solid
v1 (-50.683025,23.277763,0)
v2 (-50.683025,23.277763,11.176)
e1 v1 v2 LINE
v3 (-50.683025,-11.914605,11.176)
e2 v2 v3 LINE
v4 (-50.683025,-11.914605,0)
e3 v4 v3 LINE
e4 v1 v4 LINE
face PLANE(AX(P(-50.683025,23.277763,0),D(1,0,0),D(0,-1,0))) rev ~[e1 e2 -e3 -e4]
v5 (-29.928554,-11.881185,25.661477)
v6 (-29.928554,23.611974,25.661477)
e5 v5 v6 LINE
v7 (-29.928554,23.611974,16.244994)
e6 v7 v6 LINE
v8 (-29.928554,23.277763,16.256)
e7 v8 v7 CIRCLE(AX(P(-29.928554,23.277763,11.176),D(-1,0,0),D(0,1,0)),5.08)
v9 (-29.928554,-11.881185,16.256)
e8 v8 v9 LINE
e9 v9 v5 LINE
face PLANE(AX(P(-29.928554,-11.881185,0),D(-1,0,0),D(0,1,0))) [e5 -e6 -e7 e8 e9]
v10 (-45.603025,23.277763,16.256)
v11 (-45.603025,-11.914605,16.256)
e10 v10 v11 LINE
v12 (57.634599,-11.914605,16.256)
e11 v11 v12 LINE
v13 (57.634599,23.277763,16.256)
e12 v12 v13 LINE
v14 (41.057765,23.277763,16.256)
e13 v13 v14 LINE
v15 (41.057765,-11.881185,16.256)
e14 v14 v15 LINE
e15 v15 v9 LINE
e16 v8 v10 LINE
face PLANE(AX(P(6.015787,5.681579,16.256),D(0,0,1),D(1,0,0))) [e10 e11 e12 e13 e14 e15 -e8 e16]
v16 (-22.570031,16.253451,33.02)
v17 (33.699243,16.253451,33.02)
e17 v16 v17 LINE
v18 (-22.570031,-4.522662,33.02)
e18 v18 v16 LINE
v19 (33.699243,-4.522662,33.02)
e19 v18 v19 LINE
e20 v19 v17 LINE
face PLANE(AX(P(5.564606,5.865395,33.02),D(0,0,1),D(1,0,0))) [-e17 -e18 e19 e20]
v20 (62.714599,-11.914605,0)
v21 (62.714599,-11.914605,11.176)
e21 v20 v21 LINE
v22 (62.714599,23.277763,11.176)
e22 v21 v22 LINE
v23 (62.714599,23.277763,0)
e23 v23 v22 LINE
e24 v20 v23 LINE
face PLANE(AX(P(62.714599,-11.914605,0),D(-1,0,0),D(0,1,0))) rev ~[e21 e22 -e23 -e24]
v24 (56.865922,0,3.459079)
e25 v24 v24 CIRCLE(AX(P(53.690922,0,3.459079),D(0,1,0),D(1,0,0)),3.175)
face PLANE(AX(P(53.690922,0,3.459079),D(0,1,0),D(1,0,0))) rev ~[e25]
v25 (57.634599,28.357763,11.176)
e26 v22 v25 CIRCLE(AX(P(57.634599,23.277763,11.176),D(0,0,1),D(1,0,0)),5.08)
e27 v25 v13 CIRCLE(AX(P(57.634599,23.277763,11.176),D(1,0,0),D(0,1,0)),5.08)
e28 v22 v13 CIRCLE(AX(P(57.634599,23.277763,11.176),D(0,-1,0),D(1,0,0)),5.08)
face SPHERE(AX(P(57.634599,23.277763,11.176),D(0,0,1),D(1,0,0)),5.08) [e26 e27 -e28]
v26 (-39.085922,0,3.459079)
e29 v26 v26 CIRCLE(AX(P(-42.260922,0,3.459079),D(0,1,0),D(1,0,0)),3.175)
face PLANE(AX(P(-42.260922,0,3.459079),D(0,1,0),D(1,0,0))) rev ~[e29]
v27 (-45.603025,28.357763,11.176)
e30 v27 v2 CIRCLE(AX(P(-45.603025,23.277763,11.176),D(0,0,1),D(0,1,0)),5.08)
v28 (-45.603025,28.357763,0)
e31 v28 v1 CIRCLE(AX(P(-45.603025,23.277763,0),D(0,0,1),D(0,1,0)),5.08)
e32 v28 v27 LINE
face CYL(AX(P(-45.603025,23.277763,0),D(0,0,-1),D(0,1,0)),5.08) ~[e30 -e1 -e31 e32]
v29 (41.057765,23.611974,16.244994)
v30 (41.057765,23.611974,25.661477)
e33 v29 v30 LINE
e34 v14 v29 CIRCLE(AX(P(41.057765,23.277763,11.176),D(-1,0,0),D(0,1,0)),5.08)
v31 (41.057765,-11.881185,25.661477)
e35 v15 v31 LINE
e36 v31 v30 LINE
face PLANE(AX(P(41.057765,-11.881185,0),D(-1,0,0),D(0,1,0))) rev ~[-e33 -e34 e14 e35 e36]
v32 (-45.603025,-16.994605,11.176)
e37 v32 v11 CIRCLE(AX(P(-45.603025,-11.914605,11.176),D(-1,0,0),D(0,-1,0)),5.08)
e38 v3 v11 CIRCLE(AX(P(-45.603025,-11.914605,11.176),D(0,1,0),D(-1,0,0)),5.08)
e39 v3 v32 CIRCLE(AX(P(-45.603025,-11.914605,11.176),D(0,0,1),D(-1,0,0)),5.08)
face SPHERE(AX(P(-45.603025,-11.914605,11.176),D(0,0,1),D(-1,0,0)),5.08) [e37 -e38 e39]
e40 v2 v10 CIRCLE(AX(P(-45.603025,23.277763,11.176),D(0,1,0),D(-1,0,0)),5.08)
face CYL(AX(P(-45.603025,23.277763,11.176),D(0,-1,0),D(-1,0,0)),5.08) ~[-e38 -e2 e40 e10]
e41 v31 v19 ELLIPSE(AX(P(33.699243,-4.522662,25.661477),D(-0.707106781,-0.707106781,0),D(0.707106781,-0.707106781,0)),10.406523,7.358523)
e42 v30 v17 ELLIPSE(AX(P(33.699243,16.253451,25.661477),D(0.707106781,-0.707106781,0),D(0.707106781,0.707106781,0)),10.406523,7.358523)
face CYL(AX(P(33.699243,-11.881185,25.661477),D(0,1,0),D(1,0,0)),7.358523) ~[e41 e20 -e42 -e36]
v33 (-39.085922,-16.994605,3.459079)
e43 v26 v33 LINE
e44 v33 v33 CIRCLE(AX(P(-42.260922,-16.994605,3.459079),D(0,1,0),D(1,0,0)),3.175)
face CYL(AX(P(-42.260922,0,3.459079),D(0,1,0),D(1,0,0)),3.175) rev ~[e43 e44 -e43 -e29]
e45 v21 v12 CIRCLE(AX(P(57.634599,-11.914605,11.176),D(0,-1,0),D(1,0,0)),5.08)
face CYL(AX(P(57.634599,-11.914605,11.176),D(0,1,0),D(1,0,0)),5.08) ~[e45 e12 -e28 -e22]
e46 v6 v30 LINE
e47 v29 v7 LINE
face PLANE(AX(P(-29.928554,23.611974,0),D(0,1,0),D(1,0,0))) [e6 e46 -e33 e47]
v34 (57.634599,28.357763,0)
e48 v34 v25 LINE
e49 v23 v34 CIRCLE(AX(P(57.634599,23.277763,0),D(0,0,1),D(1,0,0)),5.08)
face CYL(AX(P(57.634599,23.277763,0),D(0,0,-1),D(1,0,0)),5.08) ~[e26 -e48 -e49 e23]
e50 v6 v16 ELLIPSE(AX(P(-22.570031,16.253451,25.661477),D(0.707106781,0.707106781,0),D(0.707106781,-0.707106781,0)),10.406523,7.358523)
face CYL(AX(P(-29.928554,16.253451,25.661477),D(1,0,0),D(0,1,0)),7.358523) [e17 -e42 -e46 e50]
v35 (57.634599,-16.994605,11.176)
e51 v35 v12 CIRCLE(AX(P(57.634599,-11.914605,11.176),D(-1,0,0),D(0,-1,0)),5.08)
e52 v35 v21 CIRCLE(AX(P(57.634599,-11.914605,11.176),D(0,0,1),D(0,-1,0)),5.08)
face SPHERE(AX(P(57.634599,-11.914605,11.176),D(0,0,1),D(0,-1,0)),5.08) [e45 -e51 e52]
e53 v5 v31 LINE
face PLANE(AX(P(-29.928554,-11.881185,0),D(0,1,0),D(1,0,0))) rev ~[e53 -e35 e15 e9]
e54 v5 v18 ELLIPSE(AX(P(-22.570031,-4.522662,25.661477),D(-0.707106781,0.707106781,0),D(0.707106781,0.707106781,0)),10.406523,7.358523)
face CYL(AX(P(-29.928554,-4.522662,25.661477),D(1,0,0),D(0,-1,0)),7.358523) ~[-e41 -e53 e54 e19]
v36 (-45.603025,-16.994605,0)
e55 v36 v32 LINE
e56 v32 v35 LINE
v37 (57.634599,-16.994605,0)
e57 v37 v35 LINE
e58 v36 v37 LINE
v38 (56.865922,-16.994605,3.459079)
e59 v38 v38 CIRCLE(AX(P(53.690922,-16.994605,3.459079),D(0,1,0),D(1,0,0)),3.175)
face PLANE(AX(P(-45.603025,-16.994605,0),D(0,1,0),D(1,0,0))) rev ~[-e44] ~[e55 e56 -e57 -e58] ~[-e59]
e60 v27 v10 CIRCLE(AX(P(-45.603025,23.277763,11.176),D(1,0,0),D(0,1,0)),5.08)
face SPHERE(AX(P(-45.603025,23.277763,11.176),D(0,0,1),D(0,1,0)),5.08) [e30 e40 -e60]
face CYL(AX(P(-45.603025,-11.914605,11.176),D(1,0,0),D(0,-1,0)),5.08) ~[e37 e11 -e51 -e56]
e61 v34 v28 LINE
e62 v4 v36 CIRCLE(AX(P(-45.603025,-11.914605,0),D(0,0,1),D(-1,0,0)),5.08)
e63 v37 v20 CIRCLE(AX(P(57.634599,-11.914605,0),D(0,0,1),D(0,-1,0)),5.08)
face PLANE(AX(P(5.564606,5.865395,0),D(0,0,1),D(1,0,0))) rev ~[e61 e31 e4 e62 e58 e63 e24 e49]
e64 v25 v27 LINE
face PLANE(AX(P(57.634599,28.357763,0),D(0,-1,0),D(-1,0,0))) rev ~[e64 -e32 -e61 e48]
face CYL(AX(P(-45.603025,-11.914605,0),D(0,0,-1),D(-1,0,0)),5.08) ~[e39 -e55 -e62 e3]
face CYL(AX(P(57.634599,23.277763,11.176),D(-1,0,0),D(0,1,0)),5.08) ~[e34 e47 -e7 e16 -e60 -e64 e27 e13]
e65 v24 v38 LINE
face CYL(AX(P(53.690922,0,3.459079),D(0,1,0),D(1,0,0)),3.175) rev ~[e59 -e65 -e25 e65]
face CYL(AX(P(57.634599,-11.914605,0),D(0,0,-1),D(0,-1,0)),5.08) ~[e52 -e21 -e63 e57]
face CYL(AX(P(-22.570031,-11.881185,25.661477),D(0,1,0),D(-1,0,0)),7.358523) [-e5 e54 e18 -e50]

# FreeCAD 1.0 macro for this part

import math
import FreeCAD as App
import Part
import Sketcher

V = App.Vector
Q = App.Units.Quantity


def edges_at(feature, points):
    """Names of the edges that pass closest to the given points."""
    edges = feature.Shape.Edges
    near = lambda p: min(range(len(edges)), key=lambda i: edges[i].distToShape(Part.Vertex(*p))[0])
    return sorted({f"Edge{near(p) + 1}" for p in points})

doc = App.newDocument("Part")
params = doc.addObject("Spreadsheet::Sheet", "Params")
for row, (alias, value) in enumerate([
    ("sketch1_radius", "0.2 in"),
    ("pad1_length", "0.64 in"),
    ("fillet_radius", "0.2 in"),
    ("pad2_length", "1.3 in"),
    ("fillet2_radius", "7.358523 mm"),
    ("sketch3_diameter", "0.25 in"),
], start=1):
    params.set(f"A{row}", alias)
    params.set(f"B{row}", "=" + value)
    params.setAlias(f"B{row}", alias)

body = doc.addObject("PartDesign::Body", "Body")

sketch1 = body.newObject("Sketcher::SketchObject", "Sketch")
sketch1.AttachmentSupport = (doc.getObject("XY_Plane"), [""])
sketch1.MapMode = "FlatFace"
sketch1.addGeometry([
    Part.LineSegment(V(57.634599, 28.357763, 0), V(-45.603025, 28.357763, 0)),
    Part.ArcOfCircle(Part.Circle(V(-45.603025, 23.277763, 0), V(0, 0, 1), 5.08), math.radians(90), math.radians(180)),
    Part.LineSegment(V(-50.683025, 23.277763, 0), V(-50.683025, -11.914605, 0)),
    Part.ArcOfCircle(Part.Circle(V(-45.603025, -11.914605, 0), V(0, 0, 1), 5.08), math.radians(180), math.radians(270)),
    Part.LineSegment(V(-45.603025, -16.994605, 0), V(57.634599, -16.994605, 0)),
    Part.ArcOfCircle(Part.Circle(V(57.634599, -11.914605, 0), V(0, 0, 1), 5.08), math.radians(-90), math.radians(0)),
    Part.LineSegment(V(62.714599, -11.914605, 0), V(62.714599, 23.277763, 0)),
    Part.ArcOfCircle(Part.Circle(V(57.634599, 23.277763, 0), V(0, 0, 1), 5.08), math.radians(0), math.radians(90)),
], False)
sketch1.addConstraint([
    Sketcher.Constraint("Tangent", 0, 2, 1, 1),
    Sketcher.Constraint("Tangent", 1, 2, 2, 1),
    Sketcher.Constraint("Tangent", 2, 2, 3, 1),
    Sketcher.Constraint("Tangent", 3, 2, 4, 1),
    Sketcher.Constraint("Tangent", 4, 2, 5, 1),
    Sketcher.Constraint("Tangent", 5, 2, 6, 1),
    Sketcher.Constraint("Tangent", 6, 2, 7, 1),
    Sketcher.Constraint("Tangent", 7, 2, 0, 1),
    Sketcher.Constraint("Horizontal", 0),
    Sketcher.Constraint("Vertical", 2),
    Sketcher.Constraint("Horizontal", 4),
    Sketcher.Constraint("Vertical", 6),
    Sketcher.Constraint("Equal", 1, 3),
    Sketcher.Constraint("Equal", 3, 5),
    Sketcher.Constraint("Equal", 5, 7),
    Sketcher.Constraint("Radius", 1, Q("0.2 in")),
    Sketcher.Constraint("DistanceX", -1, 1, 5, 3, Q("57.634599 mm")),
    Sketcher.Constraint("DistanceX", 0, 2, 0, 1, Q("103.237624 mm")),
    Sketcher.Constraint("DistanceY", 2, 2, 2, 1, Q("35.192368 mm")),
    Sketcher.Constraint("DistanceY", -1, 1, 1, 3, Q("23.277763 mm")),
])
sketch1.setExpression("Constraints[15]", "Params.sketch1_radius")
pad1 = body.newObject("PartDesign::Pad", "Pad")
pad1.Profile = sketch1
pad1.setExpression("Length", "Params.pad1_length")
doc.recompute()

fillet = body.newObject("PartDesign::Fillet", "Fillet")
fillet.Base = (pad1, edges_at(pad1, [(-49.195, -15.507, 16.256)]))
fillet.setExpression("Radius", "Params.fillet_radius")

sketch2 = body.newObject("Sketcher::SketchObject", "Sketch001")
sketch2.AttachmentSupport = (doc.getObject("XY_Plane"), [""])
sketch2.MapMode = "FlatFace"
sketch2.addGeometry([
    Part.LineSegment(V(-29.928554, 23.611974, 0), V(-29.928554, -11.881185, 0)),
    Part.LineSegment(V(-29.928554, -11.881185, 0), V(41.057765, -11.881185, 0)),
    Part.LineSegment(V(41.057765, -11.881185, 0), V(41.057765, 23.611974, 0)),
    Part.LineSegment(V(41.057765, 23.611974, 0), V(-29.928554, 23.611974, 0)),
], False)
sketch2.addConstraint([
    Sketcher.Constraint("Coincident", 0, 2, 1, 1),
    Sketcher.Constraint("Coincident", 1, 2, 2, 1),
    Sketcher.Constraint("Coincident", 2, 2, 3, 1),
    Sketcher.Constraint("Coincident", 3, 2, 0, 1),
    Sketcher.Constraint("Vertical", 0),
    Sketcher.Constraint("Horizontal", 1),
    Sketcher.Constraint("Vertical", 2),
    Sketcher.Constraint("Horizontal", 3),
    Sketcher.Constraint("DistanceX", 1, 1, 1, 2, Q("70.986319 mm")),
    Sketcher.Constraint("DistanceY", 0, 2, 0, 1, Q("35.493159 mm")),
    Sketcher.Constraint("DistanceX", 0, 2, -1, 1, Q("29.928554 mm")),
    Sketcher.Constraint("DistanceY", 0, 2, -1, 1, Q("11.881185 mm")),
])
pad2 = body.newObject("PartDesign::Pad", "Pad001")
pad2.Profile = sketch2
pad2.setExpression("Length", "Params.pad2_length")
doc.recompute()

fillet2 = body.newObject("PartDesign::Fillet", "Fillet001")
fillet2.Base = (pad2, edges_at(pad2, [
    (5.565, 23.612, 33.02),
    (-29.929, 5.865, 33.02),
    (5.565, -11.881, 33.02),
    (41.058, 5.865, 33.02),
]))
fillet2.setExpression("Radius", "Params.fillet2_radius")

sketch3 = body.newObject("Sketcher::SketchObject", "Sketch002")
sketch3.AttachmentSupport = (doc.getObject("XZ_Plane"), [""])
sketch3.MapMode = "FlatFace"
sketch3.addGeometry([
    Part.Circle(V(-42.260922, 3.459079, 0), V(0, 0, 1), 3.175),
    Part.Circle(V(53.690922, 3.459079, 0), V(0, 0, 1), 3.175),
], False)
sketch3.addConstraint([
    Sketcher.Constraint("Equal", 0, 1),
    Sketcher.Constraint("Horizontal", 0, 3, 1, 3),
    Sketcher.Constraint("Diameter", 0, Q("0.25 in")),
    Sketcher.Constraint("DistanceY", -1, 1, 0, 3, Q("3.459079 mm")),
    Sketcher.Constraint("DistanceX", -1, 1, 1, 3, Q("53.690922 mm")),
    Sketcher.Constraint("DistanceX", 0, 3, -1, 1, Q("42.260922 mm")),
])
sketch3.setExpression("Constraints[2]", "Params.sketch3_diameter")
pocket1 = body.newObject("PartDesign::Pocket", "Pocket")
pocket1.Profile = sketch3
pocket1.Type = "ThroughAll"
pocket1.Reversed = True

doc.recompute()
